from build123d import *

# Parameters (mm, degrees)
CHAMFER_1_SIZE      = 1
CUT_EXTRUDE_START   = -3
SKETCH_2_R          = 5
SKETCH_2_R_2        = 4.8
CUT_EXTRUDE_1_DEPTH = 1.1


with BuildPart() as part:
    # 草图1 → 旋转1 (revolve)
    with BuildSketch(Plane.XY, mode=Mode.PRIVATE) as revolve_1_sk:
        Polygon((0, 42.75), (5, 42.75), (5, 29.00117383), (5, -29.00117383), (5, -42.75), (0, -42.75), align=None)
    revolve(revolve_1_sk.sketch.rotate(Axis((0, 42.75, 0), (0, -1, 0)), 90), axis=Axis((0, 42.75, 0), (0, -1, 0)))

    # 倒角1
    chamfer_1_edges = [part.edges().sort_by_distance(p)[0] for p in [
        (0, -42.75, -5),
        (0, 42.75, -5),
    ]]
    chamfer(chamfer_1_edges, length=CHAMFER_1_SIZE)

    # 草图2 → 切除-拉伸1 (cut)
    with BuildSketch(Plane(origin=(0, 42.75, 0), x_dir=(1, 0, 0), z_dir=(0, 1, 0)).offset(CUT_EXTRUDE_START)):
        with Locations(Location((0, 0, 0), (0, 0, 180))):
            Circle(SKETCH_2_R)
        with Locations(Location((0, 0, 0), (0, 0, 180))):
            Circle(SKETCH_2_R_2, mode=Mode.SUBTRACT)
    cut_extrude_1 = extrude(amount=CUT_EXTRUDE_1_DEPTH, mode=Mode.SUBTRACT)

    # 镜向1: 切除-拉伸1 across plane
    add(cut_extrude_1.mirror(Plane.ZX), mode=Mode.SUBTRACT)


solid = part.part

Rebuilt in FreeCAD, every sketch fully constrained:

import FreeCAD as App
import Part
import Sketcher


def edges_at(feature, points):
    """Names of the edges that pass closest to the given points."""
    edges = feature.Shape.Edges
    near = lambda p: min(range(len(edges)), key=lambda i: edges[i].distToShape(Part.Vertex(*p))[0])
    return sorted({f"Edge{near(p) + 1}" for p in points})

doc = App.newDocument("Part")
body = doc.addObject("PartDesign::Body", "Body")

# Sketch on XY plane
sketch1 = doc.addObject("Sketcher::SketchObject", "Sketch")
body.addObject(sketch1)
sketch1.AttachmentSupport = (doc.XY_Plane, [""])
sketch1.MapMode = "FlatFace"
sketch1.addGeometry(Part.LineSegment(App.Vector(5, 42.75, 0), App.Vector(0, 42.75, 0)), False)
sketch1.addGeometry(Part.LineSegment(App.Vector(0, 42.75, 0), App.Vector(0, -42.75, 0)), False)
sketch1.addGeometry(Part.LineSegment(App.Vector(0, -42.75, 0), App.Vector(5, -42.75, 0)), False)
sketch1.addGeometry(Part.LineSegment(App.Vector(5, -42.75, 0), App.Vector(5, 42.75, 0)), False)
sketch1.addConstraint(Sketcher.Constraint("Coincident", 0, 2, 1, 1))
sketch1.addConstraint(Sketcher.Constraint("Coincident", 1, 2, 2, 1))
sketch1.addConstraint(Sketcher.Constraint("Coincident", 2, 2, 3, 1))
sketch1.addConstraint(Sketcher.Constraint("Coincident", 3, 2, 0, 1))
sketch1.addConstraint(Sketcher.Constraint("Horizontal", 0))
sketch1.addConstraint(Sketcher.Constraint("Vertical", 1))
sketch1.addConstraint(Sketcher.Constraint("Horizontal", 2))
sketch1.addConstraint(Sketcher.Constraint("Vertical", 3))
sketch1.addConstraint(Sketcher.Constraint("Symmetric", 0, 2, 1, 2, -1, 1))
sketch1.addConstraint(Sketcher.Constraint("DistanceX", 0, 2, 0, 1, 5.0))
sketch1.addConstraint(Sketcher.Constraint("DistanceY", 1, 2, 1, 1, 85.5))
revolution = doc.addObject("PartDesign::Revolution", "Revolution")
body.addObject(revolution)
revolution.Profile = sketch1
revolution.ReferenceAxis = (sketch1, ["V_Axis"])
revolution.Angle = 360
doc.recompute()

chamfer = doc.addObject("PartDesign::Chamfer", "Chamfer")
body.addObject(chamfer)
chamfer.Base = (revolution, edges_at(revolution, [(0, -42.75, -5), (0, 42.75, -5)]))
chamfer.Size = 1

# Sketch on XZ plane
sketch2 = doc.addObject("Sketcher::SketchObject", "Sketch001")
body.addObject(sketch2)
sketch2.AttachmentSupport = (doc.XZ_Plane, [""])
sketch2.MapMode = "FlatFace"
sketch2.AttachmentOffset = App.Placement(App.Vector(0, 0, -39.75), App.Rotation())
sketch2.addGeometry(Part.Circle(App.Vector(0, 0, 0), App.Vector(0, 0, 1), 5), False)
sketch2.addGeometry(Part.Circle(App.Vector(0, 0, 0), App.Vector(0, 0, 1), 4.8), False)
sketch2.addConstraint(Sketcher.Constraint("Coincident", 0, 3, -1, 1))
sketch2.addConstraint(Sketcher.Constraint("Coincident", 1, 3, -1, 1))
sketch2.addConstraint(Sketcher.Constraint("Diameter", 0, 10.0))
sketch2.addConstraint(Sketcher.Constraint("Diameter", 1, 9.6))
pocket1 = doc.addObject("PartDesign::Pocket", "Pocket")
body.addObject(pocket1)
pocket1.Profile = sketch2
pocket1.Length = 1.1
doc.recompute()

mirrored = doc.addObject("PartDesign::Mirrored", "Mirrored")
body.addObject(mirrored)
mirrored.Originals = [pocket1]
mirrored.MirrorPlane = (doc.XZ_Plane, [""])
body.Tip = mirrored

doc.recompute()
